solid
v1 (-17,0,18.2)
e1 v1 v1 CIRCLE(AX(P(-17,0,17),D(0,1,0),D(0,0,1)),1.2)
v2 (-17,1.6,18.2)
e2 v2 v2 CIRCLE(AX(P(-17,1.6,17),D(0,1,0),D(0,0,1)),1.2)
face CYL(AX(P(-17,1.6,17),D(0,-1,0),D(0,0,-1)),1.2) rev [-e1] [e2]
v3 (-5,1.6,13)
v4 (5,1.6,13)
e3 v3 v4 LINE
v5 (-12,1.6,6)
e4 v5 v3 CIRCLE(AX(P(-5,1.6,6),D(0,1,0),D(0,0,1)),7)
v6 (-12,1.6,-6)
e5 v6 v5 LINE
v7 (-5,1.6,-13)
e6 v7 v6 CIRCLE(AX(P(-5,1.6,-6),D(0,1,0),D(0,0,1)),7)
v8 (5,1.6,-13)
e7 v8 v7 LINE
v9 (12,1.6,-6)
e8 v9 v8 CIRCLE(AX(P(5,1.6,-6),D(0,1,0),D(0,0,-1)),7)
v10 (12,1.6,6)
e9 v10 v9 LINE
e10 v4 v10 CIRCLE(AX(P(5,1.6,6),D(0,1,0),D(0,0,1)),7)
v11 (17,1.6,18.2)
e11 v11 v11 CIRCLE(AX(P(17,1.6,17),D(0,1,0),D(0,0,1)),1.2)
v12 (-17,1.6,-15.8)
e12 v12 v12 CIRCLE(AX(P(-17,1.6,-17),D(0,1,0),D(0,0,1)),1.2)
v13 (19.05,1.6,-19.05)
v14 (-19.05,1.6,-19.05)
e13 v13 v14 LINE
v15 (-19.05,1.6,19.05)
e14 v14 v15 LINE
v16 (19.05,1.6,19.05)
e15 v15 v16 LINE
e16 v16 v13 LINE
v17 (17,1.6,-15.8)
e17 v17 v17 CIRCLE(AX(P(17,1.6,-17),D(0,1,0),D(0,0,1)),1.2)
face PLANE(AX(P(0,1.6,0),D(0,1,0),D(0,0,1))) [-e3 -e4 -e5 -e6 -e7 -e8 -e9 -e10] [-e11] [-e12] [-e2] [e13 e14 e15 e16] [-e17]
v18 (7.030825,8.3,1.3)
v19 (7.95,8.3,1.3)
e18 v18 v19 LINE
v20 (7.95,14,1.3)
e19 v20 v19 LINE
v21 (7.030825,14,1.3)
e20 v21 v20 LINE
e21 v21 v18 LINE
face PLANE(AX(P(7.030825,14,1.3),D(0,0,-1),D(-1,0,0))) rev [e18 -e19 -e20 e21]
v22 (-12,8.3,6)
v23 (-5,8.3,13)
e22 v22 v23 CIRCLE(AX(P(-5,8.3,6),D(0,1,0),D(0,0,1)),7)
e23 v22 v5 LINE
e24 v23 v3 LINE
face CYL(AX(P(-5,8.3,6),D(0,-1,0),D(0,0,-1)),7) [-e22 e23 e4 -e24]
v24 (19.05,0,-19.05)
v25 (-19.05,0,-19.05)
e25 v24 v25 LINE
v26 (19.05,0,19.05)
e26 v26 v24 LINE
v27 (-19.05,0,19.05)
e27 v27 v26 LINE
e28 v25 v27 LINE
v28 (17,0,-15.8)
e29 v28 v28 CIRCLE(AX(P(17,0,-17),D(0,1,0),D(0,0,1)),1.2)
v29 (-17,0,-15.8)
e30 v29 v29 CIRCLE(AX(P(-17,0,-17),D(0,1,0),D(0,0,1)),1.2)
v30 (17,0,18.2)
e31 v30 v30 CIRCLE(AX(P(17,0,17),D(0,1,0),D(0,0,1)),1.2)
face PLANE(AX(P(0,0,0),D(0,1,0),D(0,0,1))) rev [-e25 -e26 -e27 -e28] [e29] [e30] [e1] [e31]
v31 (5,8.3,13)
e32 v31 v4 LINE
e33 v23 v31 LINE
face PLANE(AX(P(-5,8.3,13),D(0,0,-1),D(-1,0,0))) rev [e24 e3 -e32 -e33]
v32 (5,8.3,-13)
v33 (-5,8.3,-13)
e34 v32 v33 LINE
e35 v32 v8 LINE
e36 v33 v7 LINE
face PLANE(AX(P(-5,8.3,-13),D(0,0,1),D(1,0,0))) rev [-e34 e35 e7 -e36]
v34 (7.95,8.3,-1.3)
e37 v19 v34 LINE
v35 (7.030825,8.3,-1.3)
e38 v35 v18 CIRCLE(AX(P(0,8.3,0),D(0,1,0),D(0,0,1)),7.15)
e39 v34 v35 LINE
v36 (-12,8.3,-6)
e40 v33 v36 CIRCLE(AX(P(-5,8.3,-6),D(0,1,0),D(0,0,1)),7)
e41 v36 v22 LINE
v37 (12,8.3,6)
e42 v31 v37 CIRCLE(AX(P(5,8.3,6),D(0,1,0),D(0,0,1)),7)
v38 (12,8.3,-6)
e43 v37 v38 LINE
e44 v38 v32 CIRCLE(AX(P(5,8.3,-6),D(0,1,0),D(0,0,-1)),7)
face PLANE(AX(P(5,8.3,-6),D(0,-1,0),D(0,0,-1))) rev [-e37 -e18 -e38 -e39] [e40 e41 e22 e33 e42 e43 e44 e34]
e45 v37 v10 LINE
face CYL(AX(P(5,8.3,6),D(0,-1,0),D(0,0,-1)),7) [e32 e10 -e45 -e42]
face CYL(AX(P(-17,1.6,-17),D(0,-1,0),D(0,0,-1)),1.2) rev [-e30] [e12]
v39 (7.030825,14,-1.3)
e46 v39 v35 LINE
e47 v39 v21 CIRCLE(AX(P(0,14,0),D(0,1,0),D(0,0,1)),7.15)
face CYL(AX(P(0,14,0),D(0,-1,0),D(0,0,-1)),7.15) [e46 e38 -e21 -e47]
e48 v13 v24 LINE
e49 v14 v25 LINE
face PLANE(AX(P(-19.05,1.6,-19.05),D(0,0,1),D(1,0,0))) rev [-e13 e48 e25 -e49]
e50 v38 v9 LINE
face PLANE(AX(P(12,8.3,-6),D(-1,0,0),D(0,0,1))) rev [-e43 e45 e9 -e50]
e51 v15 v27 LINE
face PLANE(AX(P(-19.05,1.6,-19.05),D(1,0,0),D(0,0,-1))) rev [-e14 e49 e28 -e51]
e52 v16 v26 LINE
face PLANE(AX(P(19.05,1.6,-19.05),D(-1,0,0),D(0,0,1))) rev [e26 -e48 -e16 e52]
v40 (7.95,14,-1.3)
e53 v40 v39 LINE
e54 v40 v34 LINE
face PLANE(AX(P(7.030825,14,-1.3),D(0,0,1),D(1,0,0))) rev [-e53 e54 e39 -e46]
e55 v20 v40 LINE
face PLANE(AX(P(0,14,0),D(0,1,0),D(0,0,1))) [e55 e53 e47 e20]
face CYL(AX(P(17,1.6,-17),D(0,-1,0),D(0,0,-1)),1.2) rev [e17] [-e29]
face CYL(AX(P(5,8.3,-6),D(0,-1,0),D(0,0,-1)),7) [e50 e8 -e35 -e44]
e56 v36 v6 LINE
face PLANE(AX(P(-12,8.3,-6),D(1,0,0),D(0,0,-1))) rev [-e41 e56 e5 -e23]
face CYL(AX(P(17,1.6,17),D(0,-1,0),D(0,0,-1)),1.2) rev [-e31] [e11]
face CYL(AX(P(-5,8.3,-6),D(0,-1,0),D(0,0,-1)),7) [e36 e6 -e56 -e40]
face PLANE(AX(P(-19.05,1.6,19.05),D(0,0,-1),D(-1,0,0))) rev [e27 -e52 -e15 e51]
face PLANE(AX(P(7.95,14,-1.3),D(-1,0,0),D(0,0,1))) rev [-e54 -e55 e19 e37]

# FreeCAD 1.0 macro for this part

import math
import FreeCAD as App
import Part
import Sketcher
from FreeCAD import Vector
Q = App.Units.Quantity


def add_polygon(sketch, points):
    """Adds a closed chain of lines whose ends are joined by coincident constraints."""
    first, n = sketch.GeometryCount, len(points)
    for a, b in zip(points, points[1:] + points[:1]):
        sketch.addGeometry(Part.LineSegment(App.Vector(*a, 0), App.Vector(*b, 0)), False)
    for i in range(n):
        sketch.addConstraint(Sketcher.Constraint("Coincident", first + i, 2, first + (i + 1) % n, 1))

doc = App.newDocument("Part")
body = doc.addObject("PartDesign::Body", "Body")

sketch1 = doc.addObject("Sketcher::SketchObject", "Sketch")
body.addObject(sketch1)
sketch1.AttachmentSupport = (doc.XZ_Plane, [""])
sketch1.MapMode = "FlatFace"
add_polygon(sketch1, [(-19.05, -19.05), (-19.05, 19.05), (19.05, 19.05), (19.05, -19.05)])
sketch1.addGeometry(Part.Circle(Vector(-17, 17, 0), Vector(0, 0, 1), 1.2), False)
sketch1.addGeometry(Part.Circle(Vector(17, 17, 0), Vector(0, 0, 1), 1.2), False)
sketch1.addGeometry(Part.Circle(Vector(-17, -17, 0), Vector(0, 0, 1), 1.2), False)
sketch1.addGeometry(Part.Circle(Vector(17, -17, 0), Vector(0, 0, 1), 1.2), False)
sketch1.addConstraint([
    Sketcher.Constraint("Vertical", 0),
    Sketcher.Constraint("Horizontal", 1),
    Sketcher.Constraint("Vertical", 2),
    Sketcher.Constraint("Horizontal", 3),
    Sketcher.Constraint("Equal", 4, 5),
    Sketcher.Constraint("Equal", 5, 6),
    Sketcher.Constraint("Equal", 6, 7),
    Sketcher.Constraint("Symmetric", 5, 3, 6, 3, -1, 1),
    Sketcher.Constraint("Symmetric", 4, 3, 7, 3, -1, 1),
    Sketcher.Constraint("Symmetric", 0, 2, 2, 2, -1, 1),
    Sketcher.Constraint("Symmetric", 4, 3, 5, 3, -2),
    Sketcher.Constraint("Equal", 3, 0),
    Sketcher.Constraint("Diameter", 4, Q("2.4 mm")),
    Sketcher.Constraint("DistanceX", 1, 1, 1, 2, Q("38.1 mm")),
    Sketcher.Constraint("DistanceX", 4, 3, -1, 1, Q("17 mm")),
    Sketcher.Constraint("DistanceY", -1, 1, 4, 3, Q("17 mm")),
])
pad1 = doc.addObject("PartDesign::Pad", "Pad")
body.addObject(pad1)
pad1.Profile = sketch1
pad1.Length = 1.6
pad1.Reversed = True

sketch2 = doc.addObject("Sketcher::SketchObject", "Sketch001")
body.addObject(sketch2)
sketch2.AttachmentSupport = (doc.XZ_Plane, [""])
sketch2.MapMode = "FlatFace"
sketch2.AttachmentOffset = App.Placement(Vector(0, 0, -1.6), App.Rotation())
sketch2.addGeometry([
    Part.LineSegment(Vector(5, -13, 0), Vector(-5, -13, 0)),
    Part.ArcOfCircle(Part.Circle(Vector(-5, -6, 0), Vector(0, 0, 1), 7), math.radians(-180), math.radians(-90)),
    Part.LineSegment(Vector(-12, -6, 0), Vector(-12, 6, 0)),
    Part.ArcOfCircle(Part.Circle(Vector(-5, 6, 0), Vector(0, 0, 1), 7), math.radians(90), math.radians(180)),
    Part.LineSegment(Vector(-5, 13, 0), Vector(5, 13, 0)),
    Part.ArcOfCircle(Part.Circle(Vector(5, 6, 0), Vector(0, 0, 1), 7), math.radians(0), math.radians(90)),
    Part.LineSegment(Vector(12, 6, 0), Vector(12, -6, 0)),
    Part.ArcOfCircle(Part.Circle(Vector(5, -6, 0), Vector(0, 0, 1), 7), math.radians(-90), math.radians(0)),
], False)
sketch2.addConstraint([
    Sketcher.Constraint("Tangent", 0, 2, 1, 2),
    Sketcher.Constraint("Tangent", 1, 1, 2, 1),
    Sketcher.Constraint("Tangent", 2, 2, 3, 2),
    Sketcher.Constraint("Tangent", 3, 1, 4, 1),
    Sketcher.Constraint("Tangent", 4, 2, 5, 2),
    Sketcher.Constraint("Tangent", 5, 1, 6, 1),
    Sketcher.Constraint("Tangent", 6, 2, 7, 2),
    Sketcher.Constraint("Tangent", 7, 1, 0, 1),
    Sketcher.Constraint("Horizontal", 0),
    Sketcher.Constraint("Vertical", 2),
    Sketcher.Constraint("Horizontal", 4),
    Sketcher.Constraint("Vertical", 6),
    Sketcher.Constraint("Equal", 1, 3),
    Sketcher.Constraint("Equal", 3, 5),
    Sketcher.Constraint("Equal", 5, 7),
    Sketcher.Constraint("Symmetric", 1, 3, 5, 3, -1, 1),
    Sketcher.Constraint("Radius", 1, Q("7 mm")),
    Sketcher.Constraint("DistanceX", 0, 2, 0, 1, Q("10 mm")),
    Sketcher.Constraint("DistanceY", 2, 1, 2, 2, Q("12 mm")),
])
pad2 = doc.addObject("PartDesign::Pad", "Pad001")
body.addObject(pad2)
pad2.Profile = sketch2
pad2.Length = 6.7
pad2.Reversed = True

sketch3 = doc.addObject("Sketcher::SketchObject", "Sketch002")
body.addObject(sketch3)
sketch3.AttachmentSupport = (doc.XZ_Plane, [""])
sketch3.MapMode = "FlatFace"
sketch3.AttachmentOffset = App.Placement(Vector(0, 0, -8.3), App.Rotation())
sketch3.addGeometry([
    Part.LineSegment(Vector(7.95, -1.3, 0), Vector(7.030825, -1.3, 0)),
    Part.ArcOfCircle(Part.Circle(Vector(0, 0, 0), Vector(0, 0, 1), 7.15), math.radians(10.475682), math.radians(349.524318)),
    Part.LineSegment(Vector(7.030825, 1.3, 0), Vector(7.95, 1.3, 0)),
    Part.LineSegment(Vector(7.95, 1.3, 0), Vector(7.95, -1.3, 0)),
], False)
sketch3.addConstraint([
    Sketcher.Constraint("Coincident", 0, 2, 1, 2),
    Sketcher.Constraint("Coincident", 1, 1, 2, 1),
    Sketcher.Constraint("Coincident", 2, 2, 3, 1),
    Sketcher.Constraint("Coincident", 3, 2, 0, 1),
    Sketcher.Constraint("Horizontal", 0),
    Sketcher.Constraint("Horizontal", 2),
    Sketcher.Constraint("Vertical", 3),
    Sketcher.Constraint("Coincident", 1, 3, -1, 1),
    Sketcher.Constraint("Vertical", 0, 2, 1, 1),
    Sketcher.Constraint("Radius", 1, Q("7.15 mm")),
    Sketcher.Constraint("DistanceY", 3, 2, 3, 1, Q("2.6 mm")),
    Sketcher.Constraint("DistanceX", -1, 1, 2, 2, Q("7.95 mm")),
])
pad3 = doc.addObject("PartDesign::Pad", "Pad002")
body.addObject(pad3)
pad3.Profile = sketch3
pad3.Length = 5.7
pad3.Reversed = True

doc.recompute()
